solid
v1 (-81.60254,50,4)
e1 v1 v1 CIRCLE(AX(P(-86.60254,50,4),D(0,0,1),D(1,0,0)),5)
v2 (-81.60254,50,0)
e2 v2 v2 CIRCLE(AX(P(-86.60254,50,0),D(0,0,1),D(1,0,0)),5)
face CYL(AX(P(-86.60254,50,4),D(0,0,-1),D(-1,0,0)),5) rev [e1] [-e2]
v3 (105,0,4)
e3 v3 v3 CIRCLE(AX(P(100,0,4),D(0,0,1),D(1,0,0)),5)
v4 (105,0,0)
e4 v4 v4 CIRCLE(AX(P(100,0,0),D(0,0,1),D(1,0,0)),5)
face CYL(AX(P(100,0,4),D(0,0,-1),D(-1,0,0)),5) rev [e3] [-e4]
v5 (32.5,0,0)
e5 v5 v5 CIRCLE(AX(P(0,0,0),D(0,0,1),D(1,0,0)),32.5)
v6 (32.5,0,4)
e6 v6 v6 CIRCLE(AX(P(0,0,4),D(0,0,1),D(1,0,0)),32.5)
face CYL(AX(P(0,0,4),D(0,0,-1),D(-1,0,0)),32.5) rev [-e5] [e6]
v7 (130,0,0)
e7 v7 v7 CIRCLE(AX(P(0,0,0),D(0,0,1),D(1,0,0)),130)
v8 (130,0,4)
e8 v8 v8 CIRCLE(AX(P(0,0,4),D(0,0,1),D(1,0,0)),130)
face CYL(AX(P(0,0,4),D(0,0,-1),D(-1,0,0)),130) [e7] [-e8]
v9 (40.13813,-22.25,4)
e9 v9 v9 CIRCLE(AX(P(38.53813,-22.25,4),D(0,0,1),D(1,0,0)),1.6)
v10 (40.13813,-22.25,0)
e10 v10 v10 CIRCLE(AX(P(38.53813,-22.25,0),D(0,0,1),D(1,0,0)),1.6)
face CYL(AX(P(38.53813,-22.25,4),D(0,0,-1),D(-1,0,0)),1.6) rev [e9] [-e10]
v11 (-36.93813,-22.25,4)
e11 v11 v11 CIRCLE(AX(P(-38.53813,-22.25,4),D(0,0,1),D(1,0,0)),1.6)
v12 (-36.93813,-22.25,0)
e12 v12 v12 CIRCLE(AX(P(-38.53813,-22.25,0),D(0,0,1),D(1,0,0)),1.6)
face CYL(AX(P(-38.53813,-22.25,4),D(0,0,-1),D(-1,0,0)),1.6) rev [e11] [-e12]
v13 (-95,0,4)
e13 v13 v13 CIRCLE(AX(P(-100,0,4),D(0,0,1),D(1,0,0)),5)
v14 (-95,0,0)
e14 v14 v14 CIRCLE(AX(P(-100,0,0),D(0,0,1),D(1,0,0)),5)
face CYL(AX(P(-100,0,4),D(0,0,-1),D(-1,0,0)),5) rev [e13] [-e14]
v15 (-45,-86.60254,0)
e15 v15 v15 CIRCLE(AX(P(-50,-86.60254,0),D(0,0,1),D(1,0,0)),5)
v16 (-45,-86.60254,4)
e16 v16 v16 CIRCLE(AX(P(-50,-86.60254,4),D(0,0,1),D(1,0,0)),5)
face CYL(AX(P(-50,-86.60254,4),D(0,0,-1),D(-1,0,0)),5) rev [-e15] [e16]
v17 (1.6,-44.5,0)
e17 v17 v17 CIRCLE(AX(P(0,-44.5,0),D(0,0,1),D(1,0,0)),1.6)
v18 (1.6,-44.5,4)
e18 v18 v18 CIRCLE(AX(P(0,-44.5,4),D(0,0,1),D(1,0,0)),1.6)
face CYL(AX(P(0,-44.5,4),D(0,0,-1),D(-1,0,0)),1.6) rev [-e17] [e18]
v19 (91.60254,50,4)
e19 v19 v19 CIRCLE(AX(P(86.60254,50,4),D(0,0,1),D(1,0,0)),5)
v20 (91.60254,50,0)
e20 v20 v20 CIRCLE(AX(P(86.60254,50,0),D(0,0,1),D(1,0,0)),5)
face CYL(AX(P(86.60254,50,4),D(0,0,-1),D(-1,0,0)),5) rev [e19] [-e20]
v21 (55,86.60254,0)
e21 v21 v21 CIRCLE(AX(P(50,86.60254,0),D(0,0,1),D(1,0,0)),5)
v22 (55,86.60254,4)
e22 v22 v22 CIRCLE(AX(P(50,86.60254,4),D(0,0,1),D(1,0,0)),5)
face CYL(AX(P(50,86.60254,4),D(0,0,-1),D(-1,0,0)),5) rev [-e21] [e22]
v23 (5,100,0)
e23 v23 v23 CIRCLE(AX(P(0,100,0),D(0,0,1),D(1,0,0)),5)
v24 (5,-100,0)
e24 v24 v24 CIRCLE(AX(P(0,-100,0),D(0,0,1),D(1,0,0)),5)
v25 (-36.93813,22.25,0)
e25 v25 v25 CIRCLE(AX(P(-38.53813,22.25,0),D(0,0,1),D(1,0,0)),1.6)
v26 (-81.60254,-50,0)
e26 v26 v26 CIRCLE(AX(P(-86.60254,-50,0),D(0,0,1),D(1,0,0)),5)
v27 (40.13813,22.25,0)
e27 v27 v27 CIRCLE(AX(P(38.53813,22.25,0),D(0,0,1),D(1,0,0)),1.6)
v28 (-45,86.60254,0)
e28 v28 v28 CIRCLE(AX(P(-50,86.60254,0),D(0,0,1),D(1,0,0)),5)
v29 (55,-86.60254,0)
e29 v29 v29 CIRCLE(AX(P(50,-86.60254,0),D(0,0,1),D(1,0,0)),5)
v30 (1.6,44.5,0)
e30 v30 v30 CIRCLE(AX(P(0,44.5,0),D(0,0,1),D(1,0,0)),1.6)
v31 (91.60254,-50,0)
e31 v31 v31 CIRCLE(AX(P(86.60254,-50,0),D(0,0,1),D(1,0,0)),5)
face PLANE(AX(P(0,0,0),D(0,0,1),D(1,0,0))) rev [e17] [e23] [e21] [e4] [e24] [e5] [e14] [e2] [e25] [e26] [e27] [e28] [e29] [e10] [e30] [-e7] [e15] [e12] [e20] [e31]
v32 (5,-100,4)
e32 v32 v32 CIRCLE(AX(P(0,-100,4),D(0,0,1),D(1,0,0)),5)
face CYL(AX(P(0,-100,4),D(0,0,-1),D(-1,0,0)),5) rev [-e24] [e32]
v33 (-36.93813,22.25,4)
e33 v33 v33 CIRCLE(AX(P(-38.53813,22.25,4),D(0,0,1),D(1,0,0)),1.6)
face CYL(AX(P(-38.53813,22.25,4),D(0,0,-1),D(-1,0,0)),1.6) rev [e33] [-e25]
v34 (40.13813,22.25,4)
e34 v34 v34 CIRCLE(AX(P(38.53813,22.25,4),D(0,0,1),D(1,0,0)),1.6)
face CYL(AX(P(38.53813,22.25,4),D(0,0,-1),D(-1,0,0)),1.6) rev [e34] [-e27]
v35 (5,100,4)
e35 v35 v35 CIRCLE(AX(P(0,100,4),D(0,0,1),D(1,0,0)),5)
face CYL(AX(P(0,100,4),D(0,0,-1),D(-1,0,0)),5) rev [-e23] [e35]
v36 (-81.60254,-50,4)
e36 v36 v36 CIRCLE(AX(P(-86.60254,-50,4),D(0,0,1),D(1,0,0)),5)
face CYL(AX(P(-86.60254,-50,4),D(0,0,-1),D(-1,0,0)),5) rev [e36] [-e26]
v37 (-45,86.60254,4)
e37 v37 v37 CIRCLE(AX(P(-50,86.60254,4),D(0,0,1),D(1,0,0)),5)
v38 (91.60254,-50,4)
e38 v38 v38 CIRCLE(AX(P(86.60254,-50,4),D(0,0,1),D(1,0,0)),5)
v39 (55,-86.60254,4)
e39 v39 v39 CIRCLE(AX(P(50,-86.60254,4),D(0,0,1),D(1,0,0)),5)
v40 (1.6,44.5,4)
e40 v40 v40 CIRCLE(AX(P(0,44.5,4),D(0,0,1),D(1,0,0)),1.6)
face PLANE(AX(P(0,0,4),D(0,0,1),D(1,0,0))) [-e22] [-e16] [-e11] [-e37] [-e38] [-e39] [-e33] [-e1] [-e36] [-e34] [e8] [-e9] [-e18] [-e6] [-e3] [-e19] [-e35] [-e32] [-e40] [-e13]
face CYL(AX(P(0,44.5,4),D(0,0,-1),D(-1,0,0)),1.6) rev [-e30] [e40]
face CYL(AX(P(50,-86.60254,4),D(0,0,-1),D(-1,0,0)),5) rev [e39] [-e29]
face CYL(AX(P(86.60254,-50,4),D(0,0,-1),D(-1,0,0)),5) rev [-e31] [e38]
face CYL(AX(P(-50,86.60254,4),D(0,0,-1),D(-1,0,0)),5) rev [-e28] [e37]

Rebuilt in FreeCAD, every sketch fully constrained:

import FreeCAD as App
import Part
import Sketcher
Q = App.Units.Quantity

doc = App.newDocument("Part")
body = doc.addObject("PartDesign::Body", "Body")

# Sketch on XY plane
sketch1 = body.newObject("Sketcher::SketchObject", "Sketch")
sketch1.AttachmentSupport = (doc.getObject("XY_Plane"), [""])
sketch1.MapMode = "FlatFace"
sketch1.addGeometry(Part.Circle(App.Vector(0, 0, 0), App.Vector(0, 0, 1), 130), False)
sketch1.addGeometry(Part.Circle(App.Vector(-50, -86.6, 0), App.Vector(0, 0, 1), 5), False)
sketch1.addGeometry(Part.Circle(App.Vector(-86.6, -50, 0), App.Vector(0, 0, 1), 5), False)
sketch1.addGeometry(Part.Circle(App.Vector(-38.5, -22.2, 0), App.Vector(0, 0, 1), 1.6), False)
sketch1.addGeometry(Part.Circle(App.Vector(0, -100, 0), App.Vector(0, 0, 1), 5), False)
sketch1.addGeometry(Part.Circle(App.Vector(50, -86.6, 0), App.Vector(0, 0, 1), 5), False)
sketch1.addGeometry(Part.Circle(App.Vector(0, -44.5, 0), App.Vector(0, 0, 1), 1.6), False)
sketch1.addGeometry(Part.Circle(App.Vector(38.5, -22.2, 0), App.Vector(0, 0, 1), 1.6), False)
sketch1.addGeometry(Part.Circle(App.Vector(86.6, -50, 0), App.Vector(0, 0, 1), 5), False)
sketch1.addGeometry(Part.Circle(App.Vector(-100, 0, 0), App.Vector(0, 0, 1), 5), False)
sketch1.addGeometry(Part.Circle(App.Vector(-86.6, 50, 0), App.Vector(0, 0, 1), 5), False)
sketch1.addGeometry(Part.Circle(App.Vector(-38.5, 22.2, 0), App.Vector(0, 0, 1), 1.6), False)
sketch1.addGeometry(Part.Circle(App.Vector(-50, 86.6, 0), App.Vector(0, 0, 1), 5), False)
sketch1.addGeometry(Part.Circle(App.Vector(0, 0, 0), App.Vector(0, 0, 1), 32.5), False)
sketch1.addGeometry(Part.Circle(App.Vector(38.5, 22.2, 0), App.Vector(0, 0, 1), 1.6), False)
sketch1.addGeometry(Part.Circle(App.Vector(0, 44.5, 0), App.Vector(0, 0, 1), 1.6), False)
sketch1.addGeometry(Part.Circle(App.Vector(100, 0, 0), App.Vector(0, 0, 1), 5), False)
sketch1.addGeometry(Part.Circle(App.Vector(86.6, 50, 0), App.Vector(0, 0, 1), 5), False)
sketch1.addGeometry(Part.Circle(App.Vector(0, 100, 0), App.Vector(0, 0, 1), 5), False)
sketch1.addGeometry(Part.Circle(App.Vector(50, 86.6, 0), App.Vector(0, 0, 1), 5), False)
sketch1.addConstraint(Sketcher.Constraint("Coincident", 0, 3, -1, 1))
sketch1.addConstraint(Sketcher.Constraint("Coincident", 13, 3, -1, 1))
sketch1.addConstraint(Sketcher.Constraint("Equal", 1, 2))
sketch1.addConstraint(Sketcher.Constraint("Equal", 2, 4))
sketch1.addConstraint(Sketcher.Constraint("Equal", 4, 5))
sketch1.addConstraint(Sketcher.Constraint("Equal", 3, 6))
sketch1.addConstraint(Sketcher.Constraint("Equal", 6, 7))
sketch1.addConstraint(Sketcher.Constraint("Equal", 5, 8))
sketch1.addConstraint(Sketcher.Constraint("Equal", 8, 9))
sketch1.addConstraint(Sketcher.Constraint("Equal", 9, 10))
sketch1.addConstraint(Sketcher.Constraint("Equal", 7, 11))
sketch1.addConstraint(Sketcher.Constraint("Equal", 10, 12))
sketch1.addConstraint(Sketcher.Constraint("Equal", 11, 14))
sketch1.addConstraint(Sketcher.Constraint("Equal", 14, 15))
sketch1.addConstraint(Sketcher.Constraint("Equal", 12, 16))
sketch1.addConstraint(Sketcher.Constraint("Equal", 16, 17))
sketch1.addConstraint(Sketcher.Constraint("Equal", 17, 18))
sketch1.addConstraint(Sketcher.Constraint("Equal", 18, 19))
sketch1.addConstraint(Sketcher.Constraint("Symmetric", 8, 3, 10, 3, -1, 1))
sketch1.addConstraint(Sketcher.Constraint("Symmetric", 7, 3, 11, 3, -1, 1))
sketch1.addConstraint(Sketcher.Constraint("Symmetric", 5, 3, 12, 3, -1, 1))
sketch1.addConstraint(Sketcher.Constraint("Symmetric", 3, 3, 14, 3, -1, 1))
sketch1.addConstraint(Sketcher.Constraint("Symmetric", 6, 3, 15, 3, -1, 1))
sketch1.addConstraint(Sketcher.Constraint("Symmetric", 9, 3, 16, 3, -1, 1))
sketch1.addConstraint(Sketcher.Constraint("Symmetric", 2, 3, 17, 3, -1, 1))
sketch1.addConstraint(Sketcher.Constraint("Symmetric", 4, 3, 18, 3, -1, 1))
sketch1.addConstraint(Sketcher.Constraint("Symmetric", 1, 3, 19, 3, -1, 1))
sketch1.addConstraint(Sketcher.Constraint("Symmetric", 1, 3, 5, 3, -2))
sketch1.addConstraint(Sketcher.Constraint("Symmetric", 3, 3, 7, 3, -2))
sketch1.addConstraint(Sketcher.Constraint("Symmetric", 2, 3, 8, 3, -2))
sketch1.addConstraint(Sketcher.Constraint("PointOnObject", 4, 3, -2))
sketch1.addConstraint(Sketcher.Constraint("PointOnObject", 6, 3, -2))
sketch1.addConstraint(Sketcher.Constraint("PointOnObject", 9, 3, -1))
sketch1.addConstraint(Sketcher.Constraint("Diameter", 0, Q("260 mm")))
sketch1.addConstraint(Sketcher.Constraint("Diameter", 1, Q("10 mm")))
sketch1.addConstraint(Sketcher.Constraint("Diameter", 13, Q("65 mm")))
sketch1.addConstraint(Sketcher.Constraint("Diameter", 3, Q("3.2 mm")))
sketch1.addConstraint(Sketcher.Constraint("DistanceX", 1, 3, -1, 1, Q("50 mm")))
sketch1.addConstraint(Sketcher.Constraint("DistanceY", 2, 3, -1, 1, Q("50 mm")))
sketch1.addConstraint(Sketcher.Constraint("DistanceY", 4, 3, -1, 1, Q("100 mm")))
sketch1.addConstraint(Sketcher.Constraint("DistanceX", 9, 3, -1, 1, Q("100 mm")))
sketch1.addConstraint(Sketcher.Constraint("DistanceY", 6, 3, -1, 1, Q("44.5 mm")))
sketch1.addConstraint(Sketcher.Constraint("DistanceY", 3, 3, 11, 3, Q("44.5 mm")))
sketch1.addConstraint(Sketcher.Constraint("DistanceY", 1, 3, -1, 1, Q("86.60254 mm")))
sketch1.addConstraint(Sketcher.Constraint("DistanceX", 2, 3, -1, 1, Q("86.60254 mm")))
sketch1.addConstraint(Sketcher.Constraint("DistanceX", 3, 3, -1, 1, Q("38.53813 mm")))
pad1 = body.newObject("PartDesign::Pad", "Pad")
pad1.Profile = sketch1
pad1.Length = 4

doc.recompute()
